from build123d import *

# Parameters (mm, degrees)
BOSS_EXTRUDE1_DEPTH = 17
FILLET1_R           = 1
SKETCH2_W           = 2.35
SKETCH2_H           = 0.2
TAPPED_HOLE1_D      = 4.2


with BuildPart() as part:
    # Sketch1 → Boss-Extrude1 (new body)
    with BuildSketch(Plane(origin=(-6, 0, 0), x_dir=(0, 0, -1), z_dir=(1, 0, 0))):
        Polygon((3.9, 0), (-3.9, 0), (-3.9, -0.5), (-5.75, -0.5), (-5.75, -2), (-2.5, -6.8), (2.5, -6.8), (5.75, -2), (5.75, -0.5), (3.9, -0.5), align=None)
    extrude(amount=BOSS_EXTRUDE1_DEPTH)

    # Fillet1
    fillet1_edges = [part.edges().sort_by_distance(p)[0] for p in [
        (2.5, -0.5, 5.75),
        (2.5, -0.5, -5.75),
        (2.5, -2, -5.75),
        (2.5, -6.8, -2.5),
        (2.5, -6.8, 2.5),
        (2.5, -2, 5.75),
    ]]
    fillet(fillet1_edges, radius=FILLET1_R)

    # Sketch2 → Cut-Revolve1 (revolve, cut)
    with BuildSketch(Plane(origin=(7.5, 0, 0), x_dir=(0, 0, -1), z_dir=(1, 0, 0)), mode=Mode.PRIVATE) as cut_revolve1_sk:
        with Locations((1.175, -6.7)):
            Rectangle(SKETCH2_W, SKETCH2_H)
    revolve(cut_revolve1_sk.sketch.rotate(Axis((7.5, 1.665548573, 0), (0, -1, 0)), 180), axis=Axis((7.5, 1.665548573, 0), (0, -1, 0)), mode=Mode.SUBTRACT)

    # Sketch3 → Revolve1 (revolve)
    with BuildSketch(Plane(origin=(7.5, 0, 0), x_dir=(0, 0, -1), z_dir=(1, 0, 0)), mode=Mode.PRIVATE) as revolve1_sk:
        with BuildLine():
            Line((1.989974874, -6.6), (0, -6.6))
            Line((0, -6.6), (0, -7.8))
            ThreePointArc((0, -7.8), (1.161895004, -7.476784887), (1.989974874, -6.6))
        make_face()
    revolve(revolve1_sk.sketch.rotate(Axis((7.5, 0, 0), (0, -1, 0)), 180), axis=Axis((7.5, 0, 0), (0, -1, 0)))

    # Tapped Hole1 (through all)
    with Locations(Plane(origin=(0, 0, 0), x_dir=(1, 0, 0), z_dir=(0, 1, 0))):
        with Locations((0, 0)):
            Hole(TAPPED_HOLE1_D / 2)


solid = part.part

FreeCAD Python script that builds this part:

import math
import FreeCAD as App
import Part
import Sketcher
from FreeCAD import Vector


def edges_at(feature, points):
    """Names of the edges that pass closest to the given points."""
    edges = feature.Shape.Edges
    near = lambda p: min(range(len(edges)), key=lambda i: edges[i].distToShape(Part.Vertex(*p))[0])
    return sorted({f"Edge{near(p) + 1}" for p in points})

doc = App.newDocument("Part")
params = doc.addObject("Spreadsheet::Sheet", "Params")
for row, (alias, value) in enumerate([
    ("sketch1_height", "5 mm"),
    ("sketch1_width", "0.5 mm"),
    ("sketch1_width2", "1.5 mm"),
    ("sketch1_height2", "7.8 mm"),
    ("sketch1_height3", "1.85 mm"),
    ("pad1_length", "17 mm"),
    ("fillet_radius", "1 mm"),
    ("sketch2_width", "0.2 mm"),
    ("sketch2_height", "2.35 mm"),
    ("groove_angle", "360 deg"),
    ("sketch3_radius", "2.25 mm"),
    ("sketch3_width", "1.2 mm"),
    ("revolution_angle", "360 deg"),
    ("sketch4_diameter", "4.2 mm"),
    ("hole_diameter", "4.2 mm"),
], start=1):
    params.set(f"A{row}", alias)
    params.set(f"B{row}", "=" + value)
    params.setAlias(f"B{row}", alias)

body = doc.addObject("PartDesign::Body", "Body")

# Sketch on YZ plane
sketch1 = body.newObject("Sketcher::SketchObject", "Sketch")
sketch1.AttachmentSupport = (doc.getObject("YZ_Plane"), [""])
sketch1.MapMode = "FlatFace"
sketch1.AttachmentOffset = App.Placement(Vector(0, 0, -6), App.Rotation())
sketch1.addGeometry([
    Part.LineSegment(Vector(0, -3.9, 0), Vector(0, 3.9, 0)),  # 0
    Part.LineSegment(Vector(0, 3.9, 0), Vector(-0.5, 3.9, 0)),  # 1
    Part.LineSegment(Vector(-0.5, 3.9, 0), Vector(-0.5, 5.8, 0)),  # 2
    Part.LineSegment(Vector(-0.5, 5.8, 0), Vector(-2, 5.8, 0)),  # 3
    Part.LineSegment(Vector(-2, 5.8, 0), Vector(-6.8, 2.5, 0)),  # 4
    Part.LineSegment(Vector(-6.8, 2.5, 0), Vector(-6.8, -2.5, 0)),  # 5
    Part.LineSegment(Vector(-6.8, -2.5, 0), Vector(-2, -5.8, 0)),  # 6
    Part.LineSegment(Vector(-2, -5.8, 0), Vector(-0.5, -5.8, 0)),  # 7
    Part.LineSegment(Vector(-0.5, -5.8, 0), Vector(-0.5, -3.9, 0)),  # 8
    Part.LineSegment(Vector(-0.5, -3.9, 0), Vector(0, -3.9, 0)),  # 9
], False)
sketch1.addConstraint([
    Sketcher.Constraint("Coincident", 0, 2, 1, 1),
    Sketcher.Constraint("Coincident", 1, 2, 2, 1),
    Sketcher.Constraint("Coincident", 2, 2, 3, 1),
    Sketcher.Constraint("Coincident", 3, 2, 4, 1),
    Sketcher.Constraint("Coincident", 4, 2, 5, 1),
    Sketcher.Constraint("Coincident", 5, 2, 6, 1),
    Sketcher.Constraint("Coincident", 6, 2, 7, 1),
    Sketcher.Constraint("Coincident", 7, 2, 8, 1),
    Sketcher.Constraint("Coincident", 8, 2, 9, 1),
    Sketcher.Constraint("Coincident", 9, 2, 0, 1),
    Sketcher.Constraint("Vertical", 0),
    Sketcher.Constraint("Horizontal", 1),
    Sketcher.Constraint("Vertical", 2),
    Sketcher.Constraint("Horizontal", 3),
    Sketcher.Constraint("Vertical", 5),
    Sketcher.Constraint("Horizontal", 7),
    Sketcher.Constraint("Vertical", 8),
    Sketcher.Constraint("Horizontal", 9),
    Sketcher.Constraint("Symmetric", 0, 2, 9, 2, -1, 1),
    Sketcher.Constraint("Symmetric", 3, 2, 6, 2, -1),
    Sketcher.Constraint("Vertical", 2, 2, 7, 2),
    Sketcher.Constraint("Equal", 4, 6),
    Sketcher.Constraint("DistanceY", 5, 2, 5, 1, 5.0),
    Sketcher.Constraint("DistanceX", 1, 2, 1, 1, 0.5),
    Sketcher.Constraint("DistanceX", 3, 2, 3, 1, 1.5),
    Sketcher.Constraint("DistanceY", 0, 1, 0, 2, 7.8),
    Sketcher.Constraint("DistanceY", 2, 1, 2, 2, 1.85),
    Sketcher.Constraint("DistanceX", 4, 2, -1, 1, 6.8),
])
sketch1.setExpression("Constraints[22]", "Params.sketch1_height")
sketch1.setExpression("Constraints[23]", "Params.sketch1_width")
sketch1.setExpression("Constraints[24]", "Params.sketch1_width2")
sketch1.setExpression("Constraints[25]", "Params.sketch1_height2")
sketch1.setExpression("Constraints[26]", "Params.sketch1_height3")
pad1 = body.newObject("PartDesign::Pad", "Pad")
pad1.Profile = sketch1
pad1.setExpression("Length", "Params.pad1_length")
doc.recompute()

fillet = body.newObject("PartDesign::Fillet", "Fillet")
fillet.Base = (pad1, edges_at(pad1, [
    (2.5, -0.5, 5.75),
    (2.5, -0.5, -5.75),
    (2.5, -2, -5.75),
    (2.5, -6.8, -2.5),
    (2.5, -6.8, 2.5),
    (2.5, -2, 5.75),
]))
fillet.setExpression("Radius", "Params.fillet_radius")

# Sketch on YZ plane
sketch2 = body.newObject("Sketcher::SketchObject", "Sketch001")
sketch2.AttachmentSupport = (doc.getObject("YZ_Plane"), [""])
sketch2.MapMode = "FlatFace"
sketch2.AttachmentOffset = App.Placement(Vector(0, 0, 7.5), App.Rotation())
sketch2.addGeometry([
    Part.LineSegment(Vector(-6.6, 0, 0), Vector(-6.8, 0, 0)),
    Part.LineSegment(Vector(-6.8, 0, 0), Vector(-6.8, -2.35, 0)),
    Part.LineSegment(Vector(-6.8, -2.35, 0), Vector(-6.6, -2.35, 0)),
    Part.LineSegment(Vector(-6.6, -2.35, 0), Vector(-6.6, 0, 0)),
], False)
sketch2.addConstraint([
    Sketcher.Constraint("Coincident", 0, 2, 1, 1),
    Sketcher.Constraint("Coincident", 1, 2, 2, 1),
    Sketcher.Constraint("Coincident", 2, 2, 3, 1),
    Sketcher.Constraint("Coincident", 3, 2, 0, 1),
    Sketcher.Constraint("Horizontal", 0),
    Sketcher.Constraint("Vertical", 1),
    Sketcher.Constraint("Horizontal", 2),
    Sketcher.Constraint("Vertical", 3),
    Sketcher.Constraint("PointOnObject", 0, 2, -1),
    Sketcher.Constraint("DistanceX", 0, 2, 0, 1, 0.2),
    Sketcher.Constraint("DistanceY", 1, 2, 1, 1, 2.35),
    Sketcher.Constraint("DistanceX", 0, 2, -1, 1, 6.8),
])
sketch2.setExpression("Constraints[9]", "Params.sketch2_width")
sketch2.setExpression("Constraints[10]", "Params.sketch2_height")
groove = body.newObject("PartDesign::Groove", "Groove")
groove.Profile = sketch2
groove.ReferenceAxis = (sketch2, ["H_Axis"])
groove.setExpression("Angle", "Params.groove_angle")

# Sketch on YZ plane
sketch3 = body.newObject("Sketcher::SketchObject", "Sketch002")
sketch3.AttachmentSupport = (doc.getObject("YZ_Plane"), [""])
sketch3.MapMode = "FlatFace"
sketch3.AttachmentOffset = App.Placement(Vector(0, 0, 7.5), App.Rotation())
sketch3.addGeometry([
    Part.LineSegment(Vector(-6.6, -2, 0), Vector(-6.6, 0, 0)),
    Part.LineSegment(Vector(-6.6, 0, 0), Vector(-7.8, 0, 0)),
    Part.ArcOfCircle(Part.Circle(Vector(-5.6, 0, 0), Vector(0, 0, 1), 2.2), math.radians(180), math.radians(242)),
], False)
sketch3.addConstraint([
    Sketcher.Constraint("Coincident", 0, 2, 1, 1),
    Sketcher.Constraint("Coincident", 1, 2, 2, 1),
    Sketcher.Constraint("Coincident", 2, 2, 0, 1),
    Sketcher.Constraint("Vertical", 0),
    Sketcher.Constraint("Horizontal", 1),
    Sketcher.Constraint("PointOnObject", 2, 3, -1),
    Sketcher.Constraint("PointOnObject", 0, 2, -1),
    Sketcher.Constraint("Radius", 2, 2.25),
    Sketcher.Constraint("DistanceX", 1, 2, 1, 1, 1.2),
    Sketcher.Constraint("DistanceX", 0, 2, -1, 1, 6.6),
])
sketch3.setExpression("Constraints[7]", "Params.sketch3_radius")
sketch3.setExpression("Constraints[8]", "Params.sketch3_width")
revolution = body.newObject("PartDesign::Revolution", "Revolution")
revolution.Profile = sketch3
revolution.ReferenceAxis = (sketch3, ["H_Axis"])
revolution.setExpression("Angle", "Params.revolution_angle")

# Sketch on XZ plane
sketch4 = body.newObject("Sketcher::SketchObject", "Sketch003")
sketch4.AttachmentSupport = (doc.getObject("XZ_Plane"), [""])
sketch4.MapMode = "FlatFace"
sketch4.addGeometry(Part.Circle(Vector(0, 0, 0), Vector(0, 0, 1), 2.1), False)
sketch4.addConstraint([
    Sketcher.Constraint("Coincident", 0, 3, -1, 1),
    Sketcher.Constraint("Diameter", 0, 4.2),
])
sketch4.setExpression("Constraints[1]", "Params.sketch4_diameter")
doc.recompute()
hole = body.newObject("PartDesign::Hole", "Hole")
hole.Profile = sketch4
hole.ThreadType = "None"
hole.setExpression("Diameter", "Params.hole_diameter")
hole.DepthType = "ThroughAll"
hole.Reversed = True

doc.recompute()
